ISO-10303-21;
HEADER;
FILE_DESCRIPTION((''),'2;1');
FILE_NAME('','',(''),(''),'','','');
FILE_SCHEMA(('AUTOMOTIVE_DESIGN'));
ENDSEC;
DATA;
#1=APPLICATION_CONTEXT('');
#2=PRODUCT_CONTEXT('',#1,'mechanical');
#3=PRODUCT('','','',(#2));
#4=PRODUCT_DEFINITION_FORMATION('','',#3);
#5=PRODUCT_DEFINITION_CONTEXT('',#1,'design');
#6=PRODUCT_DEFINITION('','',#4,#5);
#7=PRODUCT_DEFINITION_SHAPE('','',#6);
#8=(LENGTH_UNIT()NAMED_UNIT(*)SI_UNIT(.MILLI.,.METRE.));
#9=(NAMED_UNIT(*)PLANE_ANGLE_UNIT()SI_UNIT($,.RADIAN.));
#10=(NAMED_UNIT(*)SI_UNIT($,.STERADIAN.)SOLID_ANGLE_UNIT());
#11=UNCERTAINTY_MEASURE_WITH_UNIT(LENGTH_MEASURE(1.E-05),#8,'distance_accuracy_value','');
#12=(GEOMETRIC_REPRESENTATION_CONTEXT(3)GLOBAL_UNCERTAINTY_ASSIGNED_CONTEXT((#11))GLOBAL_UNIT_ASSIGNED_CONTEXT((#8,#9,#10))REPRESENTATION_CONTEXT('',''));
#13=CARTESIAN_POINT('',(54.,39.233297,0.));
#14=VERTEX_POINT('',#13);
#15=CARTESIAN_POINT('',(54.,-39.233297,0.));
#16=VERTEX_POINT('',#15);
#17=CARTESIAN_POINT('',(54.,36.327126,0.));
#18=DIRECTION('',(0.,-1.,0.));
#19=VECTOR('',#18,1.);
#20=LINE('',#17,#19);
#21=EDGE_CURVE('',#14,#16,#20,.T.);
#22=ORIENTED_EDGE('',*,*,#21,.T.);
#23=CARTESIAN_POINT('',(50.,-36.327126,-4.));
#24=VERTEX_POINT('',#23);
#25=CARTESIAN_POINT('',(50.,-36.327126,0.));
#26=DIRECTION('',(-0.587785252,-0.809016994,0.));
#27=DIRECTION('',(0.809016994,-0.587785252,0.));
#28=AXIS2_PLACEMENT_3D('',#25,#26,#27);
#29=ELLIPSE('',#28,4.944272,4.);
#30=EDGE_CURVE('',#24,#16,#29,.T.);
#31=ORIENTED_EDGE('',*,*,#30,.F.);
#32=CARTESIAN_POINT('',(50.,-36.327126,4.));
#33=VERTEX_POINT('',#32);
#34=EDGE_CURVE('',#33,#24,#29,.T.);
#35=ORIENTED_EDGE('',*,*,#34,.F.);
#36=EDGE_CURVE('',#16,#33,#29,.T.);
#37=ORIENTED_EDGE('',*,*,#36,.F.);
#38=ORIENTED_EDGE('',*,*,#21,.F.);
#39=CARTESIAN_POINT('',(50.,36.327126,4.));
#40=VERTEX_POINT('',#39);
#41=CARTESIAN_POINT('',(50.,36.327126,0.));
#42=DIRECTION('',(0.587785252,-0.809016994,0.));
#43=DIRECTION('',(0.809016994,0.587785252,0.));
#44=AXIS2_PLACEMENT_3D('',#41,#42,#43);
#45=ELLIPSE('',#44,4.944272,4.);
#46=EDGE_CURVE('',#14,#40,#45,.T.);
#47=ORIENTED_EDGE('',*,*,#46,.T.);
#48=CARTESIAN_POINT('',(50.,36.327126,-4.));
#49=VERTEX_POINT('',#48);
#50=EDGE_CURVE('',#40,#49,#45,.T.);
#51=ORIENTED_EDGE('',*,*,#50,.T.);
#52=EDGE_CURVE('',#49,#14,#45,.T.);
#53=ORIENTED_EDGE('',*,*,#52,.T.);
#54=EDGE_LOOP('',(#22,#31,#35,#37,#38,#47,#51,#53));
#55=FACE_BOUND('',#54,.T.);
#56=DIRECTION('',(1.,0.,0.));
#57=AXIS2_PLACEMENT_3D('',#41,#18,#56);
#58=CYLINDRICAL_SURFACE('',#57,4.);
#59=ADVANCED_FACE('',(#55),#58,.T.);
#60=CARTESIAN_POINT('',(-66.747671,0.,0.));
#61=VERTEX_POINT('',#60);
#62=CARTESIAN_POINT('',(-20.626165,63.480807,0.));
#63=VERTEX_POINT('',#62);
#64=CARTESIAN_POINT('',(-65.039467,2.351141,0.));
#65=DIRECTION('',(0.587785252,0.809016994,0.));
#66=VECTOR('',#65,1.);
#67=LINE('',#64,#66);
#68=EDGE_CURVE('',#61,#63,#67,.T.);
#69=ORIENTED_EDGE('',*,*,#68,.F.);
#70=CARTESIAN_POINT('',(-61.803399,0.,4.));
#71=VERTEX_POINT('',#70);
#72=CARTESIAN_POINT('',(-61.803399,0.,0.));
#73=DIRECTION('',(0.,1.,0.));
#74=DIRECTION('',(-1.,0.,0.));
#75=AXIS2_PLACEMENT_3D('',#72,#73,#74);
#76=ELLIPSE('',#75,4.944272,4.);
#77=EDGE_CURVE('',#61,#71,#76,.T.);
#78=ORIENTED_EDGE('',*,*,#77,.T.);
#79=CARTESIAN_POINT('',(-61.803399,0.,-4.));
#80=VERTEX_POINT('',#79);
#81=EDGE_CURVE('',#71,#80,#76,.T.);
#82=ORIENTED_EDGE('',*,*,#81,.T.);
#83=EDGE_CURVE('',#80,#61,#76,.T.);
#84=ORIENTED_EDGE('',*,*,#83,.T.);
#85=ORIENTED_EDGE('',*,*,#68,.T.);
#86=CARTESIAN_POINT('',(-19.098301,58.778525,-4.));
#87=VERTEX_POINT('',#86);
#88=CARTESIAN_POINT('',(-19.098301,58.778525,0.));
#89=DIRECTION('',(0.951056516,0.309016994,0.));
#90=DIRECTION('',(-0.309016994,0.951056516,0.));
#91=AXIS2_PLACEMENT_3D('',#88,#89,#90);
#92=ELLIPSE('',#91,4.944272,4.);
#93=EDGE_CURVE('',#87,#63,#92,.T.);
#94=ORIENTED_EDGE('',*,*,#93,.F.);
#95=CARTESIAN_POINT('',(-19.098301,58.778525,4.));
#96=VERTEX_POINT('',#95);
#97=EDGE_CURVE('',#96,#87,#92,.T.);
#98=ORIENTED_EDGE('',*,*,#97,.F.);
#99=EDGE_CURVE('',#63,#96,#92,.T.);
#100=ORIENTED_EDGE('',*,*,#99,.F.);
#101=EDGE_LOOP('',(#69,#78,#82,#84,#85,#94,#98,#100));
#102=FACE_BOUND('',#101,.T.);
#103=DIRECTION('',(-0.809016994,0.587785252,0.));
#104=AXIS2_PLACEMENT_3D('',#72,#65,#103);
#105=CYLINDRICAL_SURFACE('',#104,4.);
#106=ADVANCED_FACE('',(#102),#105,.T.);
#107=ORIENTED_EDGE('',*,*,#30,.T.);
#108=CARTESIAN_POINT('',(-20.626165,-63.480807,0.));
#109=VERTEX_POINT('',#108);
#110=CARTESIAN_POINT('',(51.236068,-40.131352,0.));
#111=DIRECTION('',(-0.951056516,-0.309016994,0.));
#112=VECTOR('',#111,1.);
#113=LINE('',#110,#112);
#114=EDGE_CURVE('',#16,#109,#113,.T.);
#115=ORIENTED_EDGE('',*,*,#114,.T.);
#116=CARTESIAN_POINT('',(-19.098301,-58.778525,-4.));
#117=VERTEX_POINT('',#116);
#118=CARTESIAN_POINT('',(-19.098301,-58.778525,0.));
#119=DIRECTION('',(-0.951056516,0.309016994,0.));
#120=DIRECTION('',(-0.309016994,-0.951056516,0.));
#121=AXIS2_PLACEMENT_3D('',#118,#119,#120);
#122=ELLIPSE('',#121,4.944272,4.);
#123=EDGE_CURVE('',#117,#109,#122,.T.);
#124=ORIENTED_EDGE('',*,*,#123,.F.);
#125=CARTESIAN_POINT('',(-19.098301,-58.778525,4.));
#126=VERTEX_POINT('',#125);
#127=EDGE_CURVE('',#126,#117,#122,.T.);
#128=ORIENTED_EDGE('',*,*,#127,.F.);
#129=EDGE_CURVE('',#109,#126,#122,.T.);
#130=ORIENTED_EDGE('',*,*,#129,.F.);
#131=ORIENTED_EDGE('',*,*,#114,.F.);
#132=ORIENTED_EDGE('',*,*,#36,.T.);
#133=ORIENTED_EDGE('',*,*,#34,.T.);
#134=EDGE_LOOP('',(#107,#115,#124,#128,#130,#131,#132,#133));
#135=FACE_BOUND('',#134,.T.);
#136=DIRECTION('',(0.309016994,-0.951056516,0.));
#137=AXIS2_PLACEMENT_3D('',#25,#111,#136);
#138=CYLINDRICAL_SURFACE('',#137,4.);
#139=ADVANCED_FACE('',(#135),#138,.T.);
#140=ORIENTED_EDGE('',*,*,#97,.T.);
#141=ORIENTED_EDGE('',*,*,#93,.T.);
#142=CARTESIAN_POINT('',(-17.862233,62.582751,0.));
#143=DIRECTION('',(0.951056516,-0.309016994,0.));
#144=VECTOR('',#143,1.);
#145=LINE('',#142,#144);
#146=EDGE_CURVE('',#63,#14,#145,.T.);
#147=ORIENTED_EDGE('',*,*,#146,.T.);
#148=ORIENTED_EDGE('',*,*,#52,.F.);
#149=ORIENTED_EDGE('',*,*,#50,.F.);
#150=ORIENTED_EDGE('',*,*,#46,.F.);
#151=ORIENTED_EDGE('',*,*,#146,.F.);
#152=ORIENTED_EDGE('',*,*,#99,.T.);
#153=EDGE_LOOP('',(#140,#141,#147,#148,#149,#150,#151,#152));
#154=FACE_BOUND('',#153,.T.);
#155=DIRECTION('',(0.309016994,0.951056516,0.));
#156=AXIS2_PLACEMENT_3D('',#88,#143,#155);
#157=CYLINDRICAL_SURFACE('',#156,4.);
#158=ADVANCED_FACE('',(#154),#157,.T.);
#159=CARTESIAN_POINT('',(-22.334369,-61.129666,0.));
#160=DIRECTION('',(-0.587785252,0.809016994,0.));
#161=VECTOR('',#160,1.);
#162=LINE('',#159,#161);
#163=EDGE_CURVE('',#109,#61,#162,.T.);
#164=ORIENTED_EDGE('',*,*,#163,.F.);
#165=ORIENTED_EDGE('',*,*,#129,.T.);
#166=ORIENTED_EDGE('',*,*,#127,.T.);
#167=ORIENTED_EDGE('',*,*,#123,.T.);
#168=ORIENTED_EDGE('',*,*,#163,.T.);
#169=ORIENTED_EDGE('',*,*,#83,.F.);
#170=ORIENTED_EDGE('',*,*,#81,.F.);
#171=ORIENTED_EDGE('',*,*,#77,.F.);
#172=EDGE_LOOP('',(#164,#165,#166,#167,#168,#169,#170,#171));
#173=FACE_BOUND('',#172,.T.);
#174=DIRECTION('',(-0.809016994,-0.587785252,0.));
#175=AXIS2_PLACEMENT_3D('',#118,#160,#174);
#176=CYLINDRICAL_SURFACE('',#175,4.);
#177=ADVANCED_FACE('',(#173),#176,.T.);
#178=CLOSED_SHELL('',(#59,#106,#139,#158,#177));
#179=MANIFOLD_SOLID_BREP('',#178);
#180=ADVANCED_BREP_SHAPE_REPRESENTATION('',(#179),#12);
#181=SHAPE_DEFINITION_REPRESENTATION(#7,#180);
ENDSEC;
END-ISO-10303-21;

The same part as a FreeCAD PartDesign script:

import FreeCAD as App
import Part
import Sketcher
Q = App.Units.Quantity


def add_polygon(sketch, points):
    """Adds a closed chain of lines whose ends are joined by coincident constraints."""
    first, n = sketch.GeometryCount, len(points)
    for a, b in zip(points, points[1:] + points[:1]):
        sketch.addGeometry(Part.LineSegment(App.Vector(*a, 0), App.Vector(*b, 0)), False)
    for i in range(n):
        sketch.addConstraint(Sketcher.Constraint("Coincident", first + i, 2, first + (i + 1) % n, 1))

doc = App.newDocument("Part")
params = doc.addObject("Spreadsheet::Sheet", "Params")
for row, (alias, value) in enumerate([
    ("sketch1_diameter", "8 mm"),
], start=1):
    params.set(f"A{row}", alias)
    params.set(f"B{row}", "=" + value)
    params.setAlias(f"B{row}", alias)

body = doc.addObject("PartDesign::Body", "Body")

# Sketch on XZ plane
sketch1 = body.newObject("Sketcher::SketchObject", "Sketch")
sketch1.AttachmentSupport = (doc.getObject("XZ_Plane"), [""])
sketch1.MapMode = "FlatFace"
sketch1.addGeometry(Part.Circle(App.Vector(50, 0, 0), App.Vector(0, 0, 1), 4), False)
sketch1.addConstraint(Sketcher.Constraint("PointOnObject", 0, 3, -1))
sketch1.addConstraint(Sketcher.Constraint("Diameter", 0, Q("8 mm")))
sketch1.addConstraint(Sketcher.Constraint("DistanceX", -1, 1, 0, 3, Q("50 mm")))
sketch1.setExpression("Constraints[1]", "Params.sketch1_diameter")

# Sketch on XY plane
sketch2 = body.newObject("Sketcher::SketchObject", "Sketch001")
sketch2.AttachmentSupport = (doc.getObject("XY_Plane"), [""])
sketch2.MapMode = "FlatFace"
add_polygon(sketch2, [(50, -36), (-19, -59), (-62, 0), (-19, 59), (50, 36)])  # lines 0-4
sketch2.addConstraint(Sketcher.Constraint("Vertical", 4))
sketch2.addConstraint(Sketcher.Constraint("Symmetric", 0, 2, 2, 2, -1))
sketch2.addConstraint(Sketcher.Constraint("PointOnObject", 1, 2, -1))
sketch2.addConstraint(Sketcher.Constraint("Equal", 0, 1))
sketch2.addConstraint(Sketcher.Constraint("Equal", 2, 3))
sketch2.addConstraint(Sketcher.Constraint("Angle", 0, Q("-162 deg")))
sketch2.addConstraint(Sketcher.Constraint("Angle", 1, Q("126 deg")))
sketch2.addConstraint(Sketcher.Constraint("DistanceX", -1, 1, 3, 2, Q("50 mm")))
sketch2.addConstraint(Sketcher.Constraint("DistanceX", 0, 2, -1, 1, Q("19.098301 mm")))
doc.recompute()

additivepipe = body.newObject("PartDesign::AdditivePipe", "AdditivePipe")
additivepipe.Profile = sketch1
additivepipe.Spine = (sketch2, ["Edge1", "Edge2", "Edge3", "Edge4", "Edge5"])
additivepipe.Transition = "Right corner"

doc.recompute()
